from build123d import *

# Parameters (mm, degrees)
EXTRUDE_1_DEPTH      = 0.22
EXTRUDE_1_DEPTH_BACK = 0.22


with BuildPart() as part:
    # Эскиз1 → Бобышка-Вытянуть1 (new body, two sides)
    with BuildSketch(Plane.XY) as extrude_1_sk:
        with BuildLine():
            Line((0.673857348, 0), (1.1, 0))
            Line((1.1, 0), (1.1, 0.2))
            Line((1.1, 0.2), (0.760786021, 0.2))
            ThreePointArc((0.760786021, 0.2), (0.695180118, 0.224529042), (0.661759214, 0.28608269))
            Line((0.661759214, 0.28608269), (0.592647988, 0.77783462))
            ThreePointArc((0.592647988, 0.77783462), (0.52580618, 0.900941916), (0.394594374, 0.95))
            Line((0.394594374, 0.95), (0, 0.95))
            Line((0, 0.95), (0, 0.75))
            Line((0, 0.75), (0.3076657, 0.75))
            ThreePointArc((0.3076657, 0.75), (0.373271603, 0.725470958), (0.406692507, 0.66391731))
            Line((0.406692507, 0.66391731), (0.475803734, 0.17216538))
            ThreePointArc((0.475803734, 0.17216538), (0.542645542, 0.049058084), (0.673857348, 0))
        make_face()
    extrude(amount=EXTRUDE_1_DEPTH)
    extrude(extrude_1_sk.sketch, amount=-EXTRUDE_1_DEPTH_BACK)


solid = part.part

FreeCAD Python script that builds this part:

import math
import FreeCAD as App
import Part
import Sketcher
from FreeCAD import Vector
Q = App.Units.Quantity

doc = App.newDocument("Part")
body = doc.addObject("PartDesign::Body", "Body")

# Sketch on XY plane
sketch1 = doc.addObject("Sketcher::SketchObject", "Sketch")
body.addObject(sketch1)
sketch1.AttachmentSupport = (doc.XY_Plane, [""])
sketch1.MapMode = "FlatFace"
sketch1.addGeometry([
    Part.LineSegment(Vector(0.673857, 0, 0), Vector(1.1, 0, 0)),  # 0
    Part.LineSegment(Vector(1.1, 0, 0), Vector(1.1, 0.2, 0)),  # 1
    Part.LineSegment(Vector(1.1, 0.2, 0), Vector(0.760786, 0.2, 0)),  # 2
    Part.ArcOfCircle(Part.Circle(Vector(0.760786, 0.3, 0), Vector(0, 0, 1), 0.1), math.radians(-172), math.radians(-90)),  # 3
    Part.LineSegment(Vector(0.661759, 0.286083, 0), Vector(0.592648, 0.777835, 0)),  # 4
    Part.ArcOfCircle(Part.Circle(Vector(0.394594, 0.75, 0), Vector(0, 0, 1), 0.2), math.radians(8), math.radians(90)),  # 5
    Part.LineSegment(Vector(0.394594, 0.95, 0), Vector(0, 0.95, 0)),  # 6
    Part.LineSegment(Vector(0, 0.95, 0), Vector(0, 0.75, 0)),  # 7
    Part.LineSegment(Vector(0, 0.75, 0), Vector(0.307666, 0.75, 0)),  # 8
    Part.ArcOfCircle(Part.Circle(Vector(0.307666, 0.65, 0), Vector(0, 0, 1), 0.1), math.radians(8), math.radians(90)),  # 9
    Part.LineSegment(Vector(0.406693, 0.663917, 0), Vector(0.475804, 0.172165, 0)),  # 10
    Part.ArcOfCircle(Part.Circle(Vector(0.673857, 0.2, 0), Vector(0, 0, 1), 0.2), math.radians(-172), math.radians(-90)),  # 11
], False)
sketch1.addConstraint([
    Sketcher.Constraint("Coincident", 0, 2, 1, 1),
    Sketcher.Constraint("Coincident", 1, 2, 2, 1),
    Sketcher.Constraint("Tangent", 2, 2, 3, 2),
    Sketcher.Constraint("Tangent", 3, 1, 4, 1),
    Sketcher.Constraint("Tangent", 4, 2, 5, 1),
    Sketcher.Constraint("Tangent", 5, 2, 6, 1),
    Sketcher.Constraint("Coincident", 6, 2, 7, 1),
    Sketcher.Constraint("Coincident", 7, 2, 8, 1),
    Sketcher.Constraint("Tangent", 8, 2, 9, 2),
    Sketcher.Constraint("Tangent", 9, 1, 10, 1),
    Sketcher.Constraint("Tangent", 10, 2, 11, 1),
    Sketcher.Constraint("Tangent", 11, 2, 0, 1),
    Sketcher.Constraint("Horizontal", 0),
    Sketcher.Constraint("Vertical", 1),
    Sketcher.Constraint("Horizontal", 2),
    Sketcher.Constraint("Horizontal", 6),
    Sketcher.Constraint("Vertical", 7),
    Sketcher.Constraint("Horizontal", 8),
    Sketcher.Constraint("Equal", 3, 9),
    Sketcher.Constraint("Equal", 5, 11),
    Sketcher.Constraint("PointOnObject", 0, 2, -1),
    Sketcher.Constraint("PointOnObject", 6, 2, -2),
    Sketcher.Constraint("Parallel", 4, 10),
    Sketcher.Constraint("Horizontal", 11, 3, 1, 2),
    Sketcher.Constraint("Horizontal", 5, 3, 7, 2),
    Sketcher.Constraint("Radius", 3, Q("0.1 mm")),
    Sketcher.Constraint("Radius", 5, Q("0.2 mm")),
    Sketcher.Constraint("Angle", 4, Q("98 deg")),
    Sketcher.Constraint("DistanceX", -1, 1, 0, 2, Q("1.1 mm")),
    Sketcher.Constraint("DistanceY", -1, 1, 5, 3, Q("0.75 mm")),
    Sketcher.Constraint("DistanceX", 3, 1, 11, 3, Q("0.012098 mm")),
    Sketcher.Constraint("DistanceX", 0, 1, 0, 2, Q("0.426143 mm")),
])
pad1 = doc.addObject("PartDesign::Pad", "Pad")
body.addObject(pad1)
pad1.Profile = sketch1
pad1.Type = "TwoLengths"
pad1.Length = 0.22
pad1.Length2 = 0.22

doc.recompute()
